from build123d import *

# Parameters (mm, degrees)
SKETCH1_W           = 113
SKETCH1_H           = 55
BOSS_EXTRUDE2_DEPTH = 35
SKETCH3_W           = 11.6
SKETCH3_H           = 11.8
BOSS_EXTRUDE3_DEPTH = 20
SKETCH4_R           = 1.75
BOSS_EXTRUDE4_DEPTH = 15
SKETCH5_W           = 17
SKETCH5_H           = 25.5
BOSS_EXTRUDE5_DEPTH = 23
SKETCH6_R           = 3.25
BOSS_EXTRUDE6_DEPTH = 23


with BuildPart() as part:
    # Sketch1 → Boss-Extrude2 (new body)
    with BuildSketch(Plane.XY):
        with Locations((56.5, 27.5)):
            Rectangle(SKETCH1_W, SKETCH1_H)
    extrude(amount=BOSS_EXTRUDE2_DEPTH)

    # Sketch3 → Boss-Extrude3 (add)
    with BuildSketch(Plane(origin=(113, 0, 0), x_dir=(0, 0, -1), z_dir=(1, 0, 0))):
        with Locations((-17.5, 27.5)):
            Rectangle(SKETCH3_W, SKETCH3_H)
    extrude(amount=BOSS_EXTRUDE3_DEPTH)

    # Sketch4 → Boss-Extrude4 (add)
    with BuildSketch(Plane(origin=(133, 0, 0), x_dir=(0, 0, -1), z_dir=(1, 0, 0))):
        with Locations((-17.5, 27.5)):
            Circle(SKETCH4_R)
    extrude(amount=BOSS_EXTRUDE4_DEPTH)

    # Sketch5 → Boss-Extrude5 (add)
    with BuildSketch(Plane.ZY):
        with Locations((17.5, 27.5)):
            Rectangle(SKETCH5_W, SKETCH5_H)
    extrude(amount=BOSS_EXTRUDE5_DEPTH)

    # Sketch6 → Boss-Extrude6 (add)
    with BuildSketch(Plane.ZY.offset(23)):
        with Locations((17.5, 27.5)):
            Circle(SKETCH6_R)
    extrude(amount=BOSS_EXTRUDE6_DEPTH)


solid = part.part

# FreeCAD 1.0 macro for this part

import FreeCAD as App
import Part
import Sketcher

V = App.Vector
Q = App.Units.Quantity


def add_polygon(sketch, points):
    """Adds a closed chain of lines whose ends are joined by coincident constraints."""
    first, n = sketch.GeometryCount, len(points)
    for a, b in zip(points, points[1:] + points[:1]):
        sketch.addGeometry(Part.LineSegment(App.Vector(*a, 0), App.Vector(*b, 0)), False)
    for i in range(n):
        sketch.addConstraint(Sketcher.Constraint("Coincident", first + i, 2, first + (i + 1) % n, 1))

doc = App.newDocument("Part")
body = doc.addObject("PartDesign::Body", "Body")

# Sketch on XY plane
sketch1 = doc.addObject("Sketcher::SketchObject", "Sketch")
body.addObject(sketch1)
sketch1.AttachmentSupport = (doc.XY_Plane, [""])
sketch1.MapMode = "FlatFace"
add_polygon(sketch1, [(0, 55), (0, 0), (113, 0), (113, 55)])  # lines 0-3
sketch1.addConstraint(Sketcher.Constraint("Vertical", 0))
sketch1.addConstraint(Sketcher.Constraint("Horizontal", 1))
sketch1.addConstraint(Sketcher.Constraint("Vertical", 2))
sketch1.addConstraint(Sketcher.Constraint("Horizontal", 3))
sketch1.addConstraint(Sketcher.Constraint("Coincident", 0, 2, -1, 1))
sketch1.addConstraint(Sketcher.Constraint("DistanceX", 1, 1, 1, 2, Q("113 mm")))
sketch1.addConstraint(Sketcher.Constraint("DistanceY", 0, 2, 0, 1, Q("55 mm")))
pad1 = doc.addObject("PartDesign::Pad", "Pad")
body.addObject(pad1)
pad1.Profile = sketch1
pad1.Length = 35

# Sketch on YZ plane
sketch2 = doc.addObject("Sketcher::SketchObject", "Sketch001")
body.addObject(sketch2)
sketch2.AttachmentSupport = (doc.YZ_Plane, [""])
sketch2.MapMode = "FlatFace"
sketch2.AttachmentOffset = App.Placement(V(0, 0, 113), App.Rotation())
add_polygon(sketch2, [(33, 23), (22, 23), (22, 12), (33, 12)])  # lines 0-3
sketch2.addConstraint(Sketcher.Constraint("Horizontal", 0))
sketch2.addConstraint(Sketcher.Constraint("Vertical", 1))
sketch2.addConstraint(Sketcher.Constraint("Horizontal", 2))
sketch2.addConstraint(Sketcher.Constraint("Vertical", 3))
sketch2.addConstraint(Sketcher.Constraint("DistanceX", 0, 2, 0, 1, Q("11.8 mm")))
sketch2.addConstraint(Sketcher.Constraint("DistanceY", 1, 2, 1, 1, Q("11.6 mm")))
sketch2.addConstraint(Sketcher.Constraint("DistanceX", -1, 1, 0, 2, Q("21.6 mm")))
sketch2.addConstraint(Sketcher.Constraint("DistanceY", -1, 1, 0, 2, Q("23.3 mm")))
pad2 = doc.addObject("PartDesign::Pad", "Pad001")
body.addObject(pad2)
pad2.Profile = sketch2
pad2.Length = 20

# Sketch on YZ plane
sketch3 = doc.addObject("Sketcher::SketchObject", "Sketch002")
body.addObject(sketch3)
sketch3.AttachmentSupport = (doc.YZ_Plane, [""])
sketch3.MapMode = "FlatFace"
sketch3.AttachmentOffset = App.Placement(V(0, 0, 133), App.Rotation())
sketch3.addGeometry(Part.Circle(V(27.5, 17.5, 0), V(0, 0, 1), 1.8), False)
sketch3.addConstraint(Sketcher.Constraint("Diameter", 0, Q("3.5 mm")))
sketch3.addConstraint(Sketcher.Constraint("DistanceX", -1, 1, 0, 3, Q("27.5 mm")))
sketch3.addConstraint(Sketcher.Constraint("DistanceY", -1, 1, 0, 3, Q("17.5 mm")))
pad3 = doc.addObject("PartDesign::Pad", "Pad002")
body.addObject(pad3)
pad3.Profile = sketch3
pad3.Length = 15

# Sketch on YZ plane
sketch4 = doc.addObject("Sketcher::SketchObject", "Sketch003")
body.addObject(sketch4)
sketch4.AttachmentSupport = (doc.YZ_Plane, [""])
sketch4.MapMode = "FlatFace"
add_polygon(sketch4, [(40, 9), (15, 9), (15, 26), (40, 26)])  # lines 0-3
sketch4.addConstraint(Sketcher.Constraint("Horizontal", 0))
sketch4.addConstraint(Sketcher.Constraint("Vertical", 1))
sketch4.addConstraint(Sketcher.Constraint("Horizontal", 2))
sketch4.addConstraint(Sketcher.Constraint("Vertical", 3))
sketch4.addConstraint(Sketcher.Constraint("DistanceY", 1, 1, 1, 2, Q("17 mm")))
sketch4.addConstraint(Sketcher.Constraint("DistanceX", 0, 2, 0, 1, Q("25.5 mm")))
sketch4.addConstraint(Sketcher.Constraint("DistanceY", -1, 1, 0, 2, Q("9 mm")))
sketch4.addConstraint(Sketcher.Constraint("DistanceX", -1, 1, 0, 2, Q("14.75 mm")))
pad4 = doc.addObject("PartDesign::Pad", "Pad003")
body.addObject(pad4)
pad4.Profile = sketch4
pad4.Length = 23
pad4.Reversed = True

# Sketch on YZ plane
sketch5 = doc.addObject("Sketcher::SketchObject", "Sketch004")
body.addObject(sketch5)
sketch5.AttachmentSupport = (doc.YZ_Plane, [""])
sketch5.MapMode = "FlatFace"
sketch5.AttachmentOffset = App.Placement(V(0, 0, -23), App.Rotation())
sketch5.addGeometry(Part.Circle(V(27.5, 17.5, 0), V(0, 0, 1), 3.2), False)
sketch5.addConstraint(Sketcher.Constraint("Diameter", 0, Q("6.5 mm")))
sketch5.addConstraint(Sketcher.Constraint("DistanceX", -1, 1, 0, 3, Q("27.5 mm")))
sketch5.addConstraint(Sketcher.Constraint("DistanceY", -1, 1, 0, 3, Q("17.5 mm")))
pad5 = doc.addObject("PartDesign::Pad", "Pad004")
body.addObject(pad5)
pad5.Profile = sketch5
pad5.Length = 23
pad5.Reversed = True

doc.recompute()
